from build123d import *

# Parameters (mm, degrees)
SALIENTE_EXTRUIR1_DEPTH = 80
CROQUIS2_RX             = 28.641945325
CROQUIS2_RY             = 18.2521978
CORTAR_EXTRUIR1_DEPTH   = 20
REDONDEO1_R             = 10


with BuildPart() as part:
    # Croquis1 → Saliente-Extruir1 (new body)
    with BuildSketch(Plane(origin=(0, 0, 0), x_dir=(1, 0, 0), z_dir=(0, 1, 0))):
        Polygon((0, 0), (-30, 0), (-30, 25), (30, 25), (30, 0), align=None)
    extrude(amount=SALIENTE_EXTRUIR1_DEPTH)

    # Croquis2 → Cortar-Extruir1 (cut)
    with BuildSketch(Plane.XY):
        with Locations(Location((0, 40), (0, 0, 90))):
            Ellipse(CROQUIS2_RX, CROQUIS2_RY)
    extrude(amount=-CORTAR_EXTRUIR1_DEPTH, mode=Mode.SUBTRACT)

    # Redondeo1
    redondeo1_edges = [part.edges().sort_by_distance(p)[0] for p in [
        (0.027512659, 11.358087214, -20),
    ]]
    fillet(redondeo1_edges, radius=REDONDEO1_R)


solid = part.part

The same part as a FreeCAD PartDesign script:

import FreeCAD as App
import Part
import Sketcher


def edges_at(feature, points):
    """Names of the edges that pass closest to the given points."""
    edges = feature.Shape.Edges
    near = lambda p: min(range(len(edges)), key=lambda i: edges[i].distToShape(Part.Vertex(*p))[0])
    return sorted({f"Edge{near(p) + 1}" for p in points})

doc = App.newDocument("Part")
params = doc.addObject("Spreadsheet::Sheet", "Params")
for row, (alias, value) in enumerate([
    ("sketch1_width", "60 mm"),
    ("sketch1_height", "25 mm"),
    ("pad1_length", "80 mm"),
    ("pocket1_length", "20 mm"),
    ("fillet_radius", "10 mm"),
], start=1):
    params.set(f"A{row}", alias)
    params.set(f"B{row}", "=" + value)
    params.setAlias(f"B{row}", alias)

body = doc.addObject("PartDesign::Body", "Body")

sketch1 = body.newObject("Sketcher::SketchObject", "Sketch")
sketch1.AttachmentSupport = (doc.getObject("XZ_Plane"), [""])
sketch1.MapMode = "FlatFace"
sketch1.addGeometry([
    Part.LineSegment(App.Vector(-30, 0, 0), App.Vector(30, 0, 0)),
    Part.LineSegment(App.Vector(30, 0, 0), App.Vector(30, -25, 0)),
    Part.LineSegment(App.Vector(30, -25, 0), App.Vector(-30, -25, 0)),
    Part.LineSegment(App.Vector(-30, -25, 0), App.Vector(-30, 0, 0)),
], False)
sketch1.addConstraint([
    Sketcher.Constraint("Coincident", 0, 2, 1, 1),
    Sketcher.Constraint("Coincident", 1, 2, 2, 1),
    Sketcher.Constraint("Coincident", 2, 2, 3, 1),
    Sketcher.Constraint("Coincident", 3, 2, 0, 1),
    Sketcher.Constraint("Horizontal", 0),
    Sketcher.Constraint("Vertical", 1),
    Sketcher.Constraint("Horizontal", 2),
    Sketcher.Constraint("Vertical", 3),
    Sketcher.Constraint("Symmetric", 0, 2, 3, 2, -1, 1),
    Sketcher.Constraint("DistanceX", 0, 1, 0, 2, 60.0),
    Sketcher.Constraint("DistanceY", 1, 2, 1, 1, 25.0),
])
sketch1.setExpression("Constraints[9]", "Params.sketch1_width")
sketch1.setExpression("Constraints[10]", "Params.sketch1_height")
pad1 = body.newObject("PartDesign::Pad", "Pad")
pad1.Profile = sketch1
pad1.setExpression("Length", "Params.pad1_length")
pad1.Reversed = True

sketch2 = body.newObject("Sketcher::SketchObject", "Sketch001")
sketch2.AttachmentSupport = (doc.getObject("XY_Plane"), [""])
sketch2.MapMode = "FlatFace"
sketch2.addGeometry(Part.Ellipse(App.Vector(0, 68.641945, 0), App.Vector(-18.252198, 40, 0), App.Vector(0, 40, 0)), False)
sketch2.addConstraint(Sketcher.Constraint("Block", 0))
pocket1 = body.newObject("PartDesign::Pocket", "Pocket")
pocket1.Profile = sketch2
pocket1.setExpression("Length", "Params.pocket1_length")
doc.recompute()

fillet = body.newObject("PartDesign::Fillet", "Fillet")
fillet.Base = (pocket1, edges_at(pocket1, [(0.028, 11.358, -20)]))
fillet.setExpression("Radius", "Params.fillet_radius")

doc.recompute()
